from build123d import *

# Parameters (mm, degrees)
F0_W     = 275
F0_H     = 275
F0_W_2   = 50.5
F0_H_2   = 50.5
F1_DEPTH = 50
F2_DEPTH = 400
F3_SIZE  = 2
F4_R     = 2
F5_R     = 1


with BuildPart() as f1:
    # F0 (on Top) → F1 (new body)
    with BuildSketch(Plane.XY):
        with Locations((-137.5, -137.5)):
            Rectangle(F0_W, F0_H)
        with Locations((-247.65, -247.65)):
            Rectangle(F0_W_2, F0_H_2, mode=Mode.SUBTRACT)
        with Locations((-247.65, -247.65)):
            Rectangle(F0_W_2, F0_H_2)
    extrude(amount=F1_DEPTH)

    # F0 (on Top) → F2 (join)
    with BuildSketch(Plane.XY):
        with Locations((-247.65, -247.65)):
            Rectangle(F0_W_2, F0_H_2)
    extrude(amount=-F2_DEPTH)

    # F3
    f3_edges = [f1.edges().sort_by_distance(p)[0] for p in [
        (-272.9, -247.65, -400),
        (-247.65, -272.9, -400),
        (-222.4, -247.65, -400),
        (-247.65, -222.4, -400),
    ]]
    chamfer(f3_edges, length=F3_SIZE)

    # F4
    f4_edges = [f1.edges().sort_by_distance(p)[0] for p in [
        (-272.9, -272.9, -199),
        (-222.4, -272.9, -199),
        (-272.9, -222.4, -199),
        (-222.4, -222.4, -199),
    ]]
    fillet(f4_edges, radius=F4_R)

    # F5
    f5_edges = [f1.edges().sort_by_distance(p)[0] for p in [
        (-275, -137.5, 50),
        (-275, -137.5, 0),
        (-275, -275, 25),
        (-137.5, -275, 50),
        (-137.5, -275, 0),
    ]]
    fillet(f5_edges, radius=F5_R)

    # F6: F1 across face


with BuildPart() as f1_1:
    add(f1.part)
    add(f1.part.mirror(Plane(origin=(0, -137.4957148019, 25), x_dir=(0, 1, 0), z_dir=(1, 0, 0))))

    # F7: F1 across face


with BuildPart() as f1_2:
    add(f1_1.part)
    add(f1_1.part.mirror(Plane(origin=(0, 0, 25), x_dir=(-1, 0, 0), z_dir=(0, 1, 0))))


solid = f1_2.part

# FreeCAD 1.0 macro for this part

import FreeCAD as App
import Part
import Sketcher
from FreeCAD import Vector


def edges_at(feature, points):
    """Names of the edges that pass closest to the given points."""
    edges = feature.Shape.Edges
    near = lambda p: min(range(len(edges)), key=lambda i: edges[i].distToShape(Part.Vertex(*p))[0])
    return sorted({f"Edge{near(p) + 1}" for p in points})

doc = App.newDocument("Part")
body = doc.addObject("PartDesign::Body", "Body")

sketch1 = body.newObject("Sketcher::SketchObject", "Sketch")
sketch1.AttachmentSupport = (doc.getObject("XY_Plane"), [""])
sketch1.MapMode = "FlatFace"
sketch1.addGeometry([
    Part.LineSegment(Vector(-275, 0, 0), Vector(-275, -275, 0)),
    Part.LineSegment(Vector(-275, -275, 0), Vector(0, -275, 0)),
    Part.LineSegment(Vector(0, -275, 0), Vector(0, 0, 0)),
    Part.LineSegment(Vector(0, 0, 0), Vector(-275, 0, 0)),
], False)
sketch1.addConstraint([
    Sketcher.Constraint("Coincident", 0, 2, 1, 1),
    Sketcher.Constraint("Coincident", 1, 2, 2, 1),
    Sketcher.Constraint("Coincident", 2, 2, 3, 1),
    Sketcher.Constraint("Coincident", 3, 2, 0, 1),
    Sketcher.Constraint("Vertical", 0),
    Sketcher.Constraint("Horizontal", 1),
    Sketcher.Constraint("Vertical", 2),
    Sketcher.Constraint("Horizontal", 3),
    Sketcher.Constraint("Coincident", 2, 2, -1, 1),
    Sketcher.Constraint("Equal", 3, 0),
    Sketcher.Constraint("DistanceX", 1, 1, 1, 2, 275.0),
])
pad1 = body.newObject("PartDesign::Pad", "Pad")
pad1.Profile = sketch1
pad1.Length = 50

sketch2 = body.newObject("Sketcher::SketchObject", "Sketch001")
sketch2.AttachmentSupport = (doc.getObject("XY_Plane"), [""])
sketch2.MapMode = "FlatFace"
sketch2.addGeometry([
    Part.LineSegment(Vector(-273, -222, 0), Vector(-273, -273, 0)),
    Part.LineSegment(Vector(-273, -273, 0), Vector(-222, -273, 0)),
    Part.LineSegment(Vector(-222, -273, 0), Vector(-222, -222, 0)),
    Part.LineSegment(Vector(-222, -222, 0), Vector(-273, -222, 0)),
], False)
sketch2.addConstraint([
    Sketcher.Constraint("Coincident", 0, 2, 1, 1),
    Sketcher.Constraint("Coincident", 1, 2, 2, 1),
    Sketcher.Constraint("Coincident", 2, 2, 3, 1),
    Sketcher.Constraint("Coincident", 3, 2, 0, 1),
    Sketcher.Constraint("Vertical", 0),
    Sketcher.Constraint("Horizontal", 1),
    Sketcher.Constraint("Vertical", 2),
    Sketcher.Constraint("Horizontal", 3),
    Sketcher.Constraint("Equal", 3, 0),
    Sketcher.Constraint("DistanceX", 1, 1, 1, 2, 50.5),
    Sketcher.Constraint("DistanceX", 0, 2, -1, 1, 272.9),
    Sketcher.Constraint("DistanceY", 0, 2, -1, 1, 272.9),
])
pad2 = body.newObject("PartDesign::Pad", "Pad001")
pad2.Profile = sketch2
pad2.Length = 400
pad2.Reversed = True
doc.recompute()

chamfer = body.newObject("PartDesign::Chamfer", "Chamfer")
chamfer.Base = (pad2, edges_at(pad2, [
    (-272.9, -247.65, -400),
    (-247.65, -272.9, -400),
    (-222.4, -247.65, -400),
    (-247.65, -222.4, -400),
]))
chamfer.Size = 2
doc.recompute()

fillet = body.newObject("PartDesign::Fillet", "Fillet")
fillet.Base = (chamfer, edges_at(chamfer, [
    (-272.9, -272.9, -199),
    (-222.4, -272.9, -199),
    (-272.9, -222.4, -199),
    (-222.4, -222.4, -199),
]))
fillet.Radius = 2
doc.recompute()

fillet2 = body.newObject("PartDesign::Fillet", "Fillet001")
fillet2.Base = (fillet, edges_at(fillet, [
    (-275, -137.5, 50),
    (-275, -137.5, 0),
    (-275, -275, 25),
    (-137.5, -275, 50),
    (-137.5, -275, 0),
]))
fillet2.Radius = 1
body2 = doc.addObject("PartDesign::Body", "Body001")
doc.recompute()

body2.BaseFeature = body
doc.recompute()

mirroring = doc.addObject("Part::Mirroring", "Mirroring")
mirroring.Source = body
mirroring.Base = Vector(0, -137.495715, 25)
mirroring.Normal = Vector(1, 0, 0)
body3 = doc.addObject("PartDesign::Body", "Body002")
body3.BaseFeature = mirroring
boolean = body2.newObject("PartDesign::Boolean", "Boolean")
boolean.Type = "Fuse"
boolean.addObjects([body3])
doc.recompute()
body4 = doc.addObject("PartDesign::Body", "Body003")
doc.recompute()

body4.BaseFeature = body2
doc.recompute()

mirroring2 = doc.addObject("Part::Mirroring", "Mirroring001")
mirroring2.Source = body2
mirroring2.Base = Vector(0, 0, 25)
mirroring2.Normal = Vector(0, 1, 0)
body5 = doc.addObject("PartDesign::Body", "Body004")
body5.BaseFeature = mirroring2
boolean2 = body4.newObject("PartDesign::Boolean", "Boolean001")
boolean2.Type = "Fuse"
boolean2.addObjects([body5])
doc.recompute()
mirroring.Visibility = False
mirroring2.Visibility = False

doc.recompute()
